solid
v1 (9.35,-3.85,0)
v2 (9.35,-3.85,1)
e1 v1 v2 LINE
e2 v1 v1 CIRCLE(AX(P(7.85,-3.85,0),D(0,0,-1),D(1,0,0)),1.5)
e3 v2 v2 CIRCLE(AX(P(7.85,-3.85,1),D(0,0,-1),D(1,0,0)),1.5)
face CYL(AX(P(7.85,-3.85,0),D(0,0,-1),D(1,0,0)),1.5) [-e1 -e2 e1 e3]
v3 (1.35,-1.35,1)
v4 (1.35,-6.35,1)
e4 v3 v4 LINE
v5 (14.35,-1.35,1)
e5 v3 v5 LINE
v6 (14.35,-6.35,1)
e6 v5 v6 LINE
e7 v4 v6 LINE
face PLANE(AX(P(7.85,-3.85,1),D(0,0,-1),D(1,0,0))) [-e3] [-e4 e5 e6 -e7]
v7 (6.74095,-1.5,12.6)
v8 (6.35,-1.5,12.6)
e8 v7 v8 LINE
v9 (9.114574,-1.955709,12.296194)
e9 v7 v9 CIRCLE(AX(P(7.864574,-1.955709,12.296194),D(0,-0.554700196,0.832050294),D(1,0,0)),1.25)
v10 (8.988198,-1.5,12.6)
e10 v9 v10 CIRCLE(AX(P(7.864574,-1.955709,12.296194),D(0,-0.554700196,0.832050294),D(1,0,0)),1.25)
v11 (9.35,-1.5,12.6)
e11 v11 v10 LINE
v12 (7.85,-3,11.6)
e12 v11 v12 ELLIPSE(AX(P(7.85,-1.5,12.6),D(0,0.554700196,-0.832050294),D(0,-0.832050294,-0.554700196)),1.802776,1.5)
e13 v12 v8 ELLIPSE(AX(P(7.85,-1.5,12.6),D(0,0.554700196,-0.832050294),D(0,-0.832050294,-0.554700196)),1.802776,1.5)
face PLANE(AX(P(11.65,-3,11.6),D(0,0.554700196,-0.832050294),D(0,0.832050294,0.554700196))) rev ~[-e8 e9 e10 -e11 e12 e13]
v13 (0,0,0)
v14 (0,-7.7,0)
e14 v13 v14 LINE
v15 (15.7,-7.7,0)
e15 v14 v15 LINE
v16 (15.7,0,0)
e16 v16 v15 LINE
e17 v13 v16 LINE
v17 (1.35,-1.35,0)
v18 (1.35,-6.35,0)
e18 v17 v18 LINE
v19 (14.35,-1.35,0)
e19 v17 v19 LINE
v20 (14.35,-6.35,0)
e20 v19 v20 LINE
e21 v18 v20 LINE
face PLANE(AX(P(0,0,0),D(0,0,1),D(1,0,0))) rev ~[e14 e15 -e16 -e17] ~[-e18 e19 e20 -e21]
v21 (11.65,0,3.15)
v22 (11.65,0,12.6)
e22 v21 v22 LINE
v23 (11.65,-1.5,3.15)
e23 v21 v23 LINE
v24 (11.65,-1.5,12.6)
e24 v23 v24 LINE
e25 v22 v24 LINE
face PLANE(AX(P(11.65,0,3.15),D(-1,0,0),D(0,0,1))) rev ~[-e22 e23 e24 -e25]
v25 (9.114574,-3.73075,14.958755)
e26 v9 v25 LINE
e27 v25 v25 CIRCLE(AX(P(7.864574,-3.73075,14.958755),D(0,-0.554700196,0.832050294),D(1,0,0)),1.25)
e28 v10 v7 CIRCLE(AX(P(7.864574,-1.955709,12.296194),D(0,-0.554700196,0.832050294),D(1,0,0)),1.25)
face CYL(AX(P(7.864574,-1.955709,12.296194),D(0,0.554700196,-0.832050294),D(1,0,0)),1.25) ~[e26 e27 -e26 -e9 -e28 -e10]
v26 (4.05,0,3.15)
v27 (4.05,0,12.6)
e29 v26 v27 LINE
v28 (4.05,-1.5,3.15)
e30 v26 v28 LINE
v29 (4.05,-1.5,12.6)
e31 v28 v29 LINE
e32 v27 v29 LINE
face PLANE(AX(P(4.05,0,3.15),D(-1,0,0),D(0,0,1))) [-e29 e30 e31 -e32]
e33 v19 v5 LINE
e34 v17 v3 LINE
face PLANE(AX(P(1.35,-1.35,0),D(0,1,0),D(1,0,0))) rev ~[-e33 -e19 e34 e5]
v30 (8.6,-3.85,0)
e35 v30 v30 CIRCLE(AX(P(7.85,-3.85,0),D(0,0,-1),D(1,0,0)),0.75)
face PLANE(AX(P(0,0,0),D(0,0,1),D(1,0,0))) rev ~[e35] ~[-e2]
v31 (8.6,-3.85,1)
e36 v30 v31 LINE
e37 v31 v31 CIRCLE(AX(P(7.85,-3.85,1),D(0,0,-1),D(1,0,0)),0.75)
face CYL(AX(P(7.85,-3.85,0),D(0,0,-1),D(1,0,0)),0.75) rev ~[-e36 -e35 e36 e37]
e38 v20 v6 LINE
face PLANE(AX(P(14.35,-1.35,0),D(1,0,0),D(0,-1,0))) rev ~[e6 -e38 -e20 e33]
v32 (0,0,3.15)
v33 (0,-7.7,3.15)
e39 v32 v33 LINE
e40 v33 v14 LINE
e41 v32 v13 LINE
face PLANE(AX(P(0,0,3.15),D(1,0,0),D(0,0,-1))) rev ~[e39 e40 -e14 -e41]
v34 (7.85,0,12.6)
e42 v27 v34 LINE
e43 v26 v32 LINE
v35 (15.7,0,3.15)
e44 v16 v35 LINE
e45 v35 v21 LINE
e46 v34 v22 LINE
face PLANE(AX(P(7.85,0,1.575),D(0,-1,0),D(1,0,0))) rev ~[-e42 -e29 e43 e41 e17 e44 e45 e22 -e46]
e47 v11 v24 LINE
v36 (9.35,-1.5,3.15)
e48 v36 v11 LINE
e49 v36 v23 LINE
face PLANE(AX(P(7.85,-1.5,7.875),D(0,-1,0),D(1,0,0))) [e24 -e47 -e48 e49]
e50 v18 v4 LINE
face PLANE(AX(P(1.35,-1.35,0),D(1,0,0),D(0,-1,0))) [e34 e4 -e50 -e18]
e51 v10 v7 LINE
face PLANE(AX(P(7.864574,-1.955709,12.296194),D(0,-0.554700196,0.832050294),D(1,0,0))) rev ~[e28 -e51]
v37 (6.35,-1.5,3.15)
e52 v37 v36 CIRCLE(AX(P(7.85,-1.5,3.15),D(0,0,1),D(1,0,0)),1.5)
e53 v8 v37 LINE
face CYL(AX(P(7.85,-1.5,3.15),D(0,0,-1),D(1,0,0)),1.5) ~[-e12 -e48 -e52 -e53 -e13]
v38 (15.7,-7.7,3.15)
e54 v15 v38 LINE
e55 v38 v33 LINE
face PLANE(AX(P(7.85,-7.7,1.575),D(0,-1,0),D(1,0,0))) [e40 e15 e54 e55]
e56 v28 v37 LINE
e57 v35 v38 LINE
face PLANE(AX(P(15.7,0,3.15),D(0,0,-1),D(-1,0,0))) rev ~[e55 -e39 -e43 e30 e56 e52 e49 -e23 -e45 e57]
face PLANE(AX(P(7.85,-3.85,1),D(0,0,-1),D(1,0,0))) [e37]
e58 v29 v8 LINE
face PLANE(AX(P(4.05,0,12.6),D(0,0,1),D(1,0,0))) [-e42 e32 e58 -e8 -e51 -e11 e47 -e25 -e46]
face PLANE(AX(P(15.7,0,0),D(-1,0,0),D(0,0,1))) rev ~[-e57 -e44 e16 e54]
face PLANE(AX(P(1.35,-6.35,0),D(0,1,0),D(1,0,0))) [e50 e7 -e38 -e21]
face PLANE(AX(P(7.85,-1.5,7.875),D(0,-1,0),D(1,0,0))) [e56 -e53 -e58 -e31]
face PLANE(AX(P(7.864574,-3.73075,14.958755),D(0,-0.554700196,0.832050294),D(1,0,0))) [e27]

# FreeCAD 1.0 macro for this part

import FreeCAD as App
import Part
import Sketcher


def add_polygon(sketch, points):
    """Adds a closed chain of lines whose ends are joined by coincident constraints."""
    first, n = sketch.GeometryCount, len(points)
    for a, b in zip(points, points[1:] + points[:1]):
        sketch.addGeometry(Part.LineSegment(App.Vector(*a, 0), App.Vector(*b, 0)), False)
    for i in range(n):
        sketch.addConstraint(Sketcher.Constraint("Coincident", first + i, 2, first + (i + 1) % n, 1))

doc = App.newDocument("Part")
body = doc.addObject("PartDesign::Body", "Body")

sketch1 = body.newObject("Sketcher::SketchObject", "Sketch")
sketch1.AttachmentSupport = (doc.getObject("XZ_Plane"), [""])
sketch1.MapMode = "FlatFace"
add_polygon(sketch1, [(0, 3.1), (0, 0), (15.7, 0), (15.7, 3.1)])
sketch1.addConstraint([
    Sketcher.Constraint("Vertical", 0),
    Sketcher.Constraint("Horizontal", 1),
    Sketcher.Constraint("Vertical", 2),
    Sketcher.Constraint("Horizontal", 3),
    Sketcher.Constraint("Coincident", 0, 2, -1, 1),
    Sketcher.Constraint("DistanceX", 1, 1, 1, 2, 15.7),
    Sketcher.Constraint("DistanceY", 0, 2, 0, 1, 3.15),
])
pad1 = body.newObject("PartDesign::Pad", "Pad")
pad1.Profile = sketch1
pad1.Length = 7.7

sketch2 = body.newObject("Sketcher::SketchObject", "Sketch001")
sketch2.AttachmentSupport = (doc.getObject("XZ_Plane"), [""])
sketch2.MapMode = "FlatFace"
add_polygon(sketch2, [(4, 13), (4, 3), (12, 3), (12, 13)])
sketch2.addConstraint([
    Sketcher.Constraint("Vertical", 0),
    Sketcher.Constraint("Horizontal", 1),
    Sketcher.Constraint("Vertical", 2),
    Sketcher.Constraint("Horizontal", 3),
    Sketcher.Constraint("DistanceX", 1, 1, 1, 2, 7.6),
    Sketcher.Constraint("DistanceY", 0, 2, 0, 1, 9.45),
    Sketcher.Constraint("DistanceY", -1, 1, 2, 2, 12.6),
    Sketcher.Constraint("DistanceX", -1, 1, 0, 2, 4.05),
])
pad2 = body.newObject("PartDesign::Pad", "Pad001")
pad2.Profile = sketch2
pad2.Length = 1.5

sketch3 = body.newObject("Sketcher::SketchObject", "Sketch002")
sketch3.AttachmentSupport = (doc.getObject("XY_Plane"), [""])
sketch3.MapMode = "FlatFace"
sketch3.AttachmentOffset = App.Placement(App.Vector(0, 0, 3.15), App.Rotation())
sketch3.addGeometry(Part.Circle(App.Vector(7.8, -1.5, 0), App.Vector(0, 0, 1), 1.5), False)
sketch3.addConstraint([
    Sketcher.Constraint("Diameter", 0, 3.0),
    Sketcher.Constraint("DistanceY", 0, 3, -1, 1, 1.5),
    Sketcher.Constraint("DistanceX", -1, 1, 0, 3, 7.85),
])
pad3 = body.newObject("PartDesign::Pad", "Pad002")
pad3.Profile = sketch3
pad3.Length = 9.45

sketch4 = body.newObject("Sketcher::SketchObject", "Sketch003")
sketch4.AttachmentSupport = (doc.getObject("XY_Plane"), [""])
sketch4.MapMode = "FlatFace"
add_polygon(sketch4, [(1.4, -6.3), (1.4, -1.4), (14.3, -1.4), (14.3, -6.3)])
sketch4.addGeometry(Part.Circle(App.Vector(7.8, -3.9, 0), App.Vector(0, 0, 1), 1.5), False)
sketch4.addGeometry(Part.Circle(App.Vector(7.8, -3.9, 0), App.Vector(0, 0, 1), 0.8), False)
sketch4.addConstraint([
    Sketcher.Constraint("Vertical", 0),
    Sketcher.Constraint("Horizontal", 1),
    Sketcher.Constraint("Vertical", 2),
    Sketcher.Constraint("Horizontal", 3),
    Sketcher.Constraint("Coincident", 5, 3, 4, 3),
    Sketcher.Constraint("Diameter", 4, 3.0),
    Sketcher.Constraint("Diameter", 5, 1.5),
    Sketcher.Constraint("DistanceX", 1, 1, 1, 2, 13.0),
    Sketcher.Constraint("DistanceY", 0, 1, 0, 2, 5.0),
    Sketcher.Constraint("DistanceX", 0, 2, 4, 3, 6.5),
    Sketcher.Constraint("DistanceY", 4, 3, 0, 2, 2.5),
    Sketcher.Constraint("DistanceX", -1, 1, 4, 3, 7.85),
    Sketcher.Constraint("DistanceY", 4, 3, -1, 1, 3.85),
])
pocket1 = body.newObject("PartDesign::Pocket", "Pocket")
pocket1.Profile = sketch4
pocket1.Length = 1
pocket1.Reversed = True

sketch5 = body.newObject("Sketcher::SketchObject", "Sketch004")
sketch5.AttachmentSupport = (doc.getObject("YZ_Plane"), [""])
sketch5.MapMode = "FlatFace"
sketch5.AttachmentOffset = App.Placement(App.Vector(0, 0, 11.65), App.Rotation())
add_polygon(sketch5, [(-3, 11.6), (-1.5, 12.6), (-3, 12.6)])
sketch5.addConstraint([
    Sketcher.Constraint("Horizontal", 1),
    Sketcher.Constraint("Vertical", 2),
    Sketcher.Constraint("DistanceY", 2, 2, 2, 1, 1.0),
    Sketcher.Constraint("DistanceX", 1, 2, 1, 1, 1.5),
    Sketcher.Constraint("DistanceX", 1, 2, -1, 1, 3.0),
    Sketcher.Constraint("DistanceY", -1, 1, 0, 2, 12.6),
])
pocket2 = body.newObject("PartDesign::Pocket", "Pocket001")
pocket2.Profile = sketch5
pocket2.Length = 25

sketch6 = body.newObject("Sketcher::SketchObject", "Sketch005")
sketch6.Placement = App.Placement(App.Vector(0, -6.276923, 9.415385), App.Rotation(App.Vector(1, 0, 0), App.Vector(0, 0.832050294, 0.554700196), App.Vector(0, -0.554700196, 0.832050294), "ZXY"))
sketch6.addGeometry(Part.Circle(App.Vector(7.9, 5.2, 0), App.Vector(0, 0, 1), 1.2), False)
sketch6.addConstraint([
    Sketcher.Constraint("Diameter", 0, 2.5),
    Sketcher.Constraint("DistanceX", -1, 1, 0, 3, 7.864574),
    Sketcher.Constraint("DistanceY", -1, 1, 0, 3, 5.193453),
])
pad4 = body.newObject("PartDesign::Pad", "Pad003")
pad4.Profile = sketch6
pad4.Length = 3.2

doc.recompute()
